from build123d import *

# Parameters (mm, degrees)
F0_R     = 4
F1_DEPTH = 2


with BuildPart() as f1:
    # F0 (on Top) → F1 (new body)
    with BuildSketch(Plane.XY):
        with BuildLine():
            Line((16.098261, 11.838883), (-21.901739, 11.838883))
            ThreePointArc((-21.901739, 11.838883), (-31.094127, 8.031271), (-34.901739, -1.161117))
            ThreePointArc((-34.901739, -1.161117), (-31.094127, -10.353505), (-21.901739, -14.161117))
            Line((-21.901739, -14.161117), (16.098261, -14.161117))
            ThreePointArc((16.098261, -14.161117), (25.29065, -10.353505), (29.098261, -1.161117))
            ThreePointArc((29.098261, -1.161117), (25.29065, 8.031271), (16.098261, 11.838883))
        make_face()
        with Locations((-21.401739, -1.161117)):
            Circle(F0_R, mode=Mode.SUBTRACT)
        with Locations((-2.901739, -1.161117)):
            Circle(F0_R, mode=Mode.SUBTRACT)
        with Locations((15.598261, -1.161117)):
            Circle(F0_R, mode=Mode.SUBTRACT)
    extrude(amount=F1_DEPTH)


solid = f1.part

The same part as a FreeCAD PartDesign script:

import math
import FreeCAD as App
import Part
import Sketcher

V = App.Vector
Q = App.Units.Quantity

doc = App.newDocument("Part")
params = doc.addObject("Spreadsheet::Sheet", "Params")
for row, (alias, value) in enumerate([
    ("sketch1_diameter", "8 mm"),
    ("sketch1_radius", "13.000001 mm"),
    ("sketch1_width", "38 mm"),
    ("pad1_length", "2 mm"),
], start=1):
    params.set(f"A{row}", alias)
    params.set(f"B{row}", "=" + value)
    params.setAlias(f"B{row}", alias)

body = doc.addObject("PartDesign::Body", "Body")

sketch1 = body.newObject("Sketcher::SketchObject", "Sketch")
sketch1.AttachmentSupport = (doc.getObject("XY_Plane"), [""])
sketch1.MapMode = "FlatFace"
sketch1.addGeometry([
    Part.LineSegment(V(16.1, 11.8, 0), V(-21.9, 11.8, 0)),
    Part.ArcOfCircle(Part.Circle(V(-21.9, -1.2, 0), V(0, 0, 1), 13), math.radians(90), math.radians(180)),
    Part.ArcOfCircle(Part.Circle(V(-21.9, -1.2, 0), V(0, 0, 1), 13), math.radians(-180), math.radians(-90)),
    Part.LineSegment(V(-21.9, -14.2, 0), V(16.1, -14.2, 0)),
    Part.ArcOfCircle(Part.Circle(V(16.1, -1.2, 0), V(0, 0, 1), 13), math.radians(-90), math.radians(0)),
    Part.ArcOfCircle(Part.Circle(V(16.1, -1.2, 0), V(0, 0, 1), 13), math.radians(0), math.radians(90)),
    Part.Circle(V(-21.4, -1.2, 0), V(0, 0, 1), 4),
    Part.Circle(V(-2.9, -1.2, 0), V(0, 0, 1), 4),
    Part.Circle(V(15.6, -1.2, 0), V(0, 0, 1), 4),
], False)
sketch1.addConstraint([
    Sketcher.Constraint("Tangent", 0, 2, 1, 1),
    Sketcher.Constraint("Tangent", 1, 2, 2, 1),
    Sketcher.Constraint("Tangent", 2, 2, 3, 1),
    Sketcher.Constraint("Tangent", 3, 2, 4, 1),
    Sketcher.Constraint("Tangent", 4, 2, 5, 1),
    Sketcher.Constraint("Tangent", 5, 2, 0, 1),
    Sketcher.Constraint("Horizontal", 0),
    Sketcher.Constraint("Horizontal", 3),
    Sketcher.Constraint("Equal", 1, 2),
    Sketcher.Constraint("Equal", 2, 4),
    Sketcher.Constraint("Equal", 6, 7),
    Sketcher.Constraint("Equal", 7, 8),
    Sketcher.Constraint("Horizontal", 5, 3, 6, 3),
    Sketcher.Constraint("Horizontal", 6, 3, 7, 3),
    Sketcher.Constraint("Horizontal", 7, 3, 8, 3),
    Sketcher.Constraint("Horizontal", 8, 3, 1, 2),
    Sketcher.Constraint("Horizontal", 1, 2, 4, 2),
    Sketcher.Constraint("Diameter", 6, Q("8 mm")),
    Sketcher.Constraint("Radius", 1, Q("13.000001 mm")),
    Sketcher.Constraint("DistanceX", 0, 2, 0, 1, Q("38 mm")),
    Sketcher.Constraint("DistanceX", 1, 3, 7, 3, Q("18.999999 mm")),
    Sketcher.Constraint("DistanceX", 6, 3, 8, 3, Q("37 mm")),
    Sketcher.Constraint("DistanceX", 1, 3, 6, 3, Q("0.499999 mm")),
    Sketcher.Constraint("DistanceX", 1, 3, -1, 1, Q("21.901738 mm")),
    Sketcher.Constraint("DistanceY", 4, 3, -1, 1, Q("1.161118 mm")),
])
sketch1.setExpression("Constraints[17]", "Params.sketch1_diameter")
sketch1.setExpression("Constraints[18]", "Params.sketch1_radius")
sketch1.setExpression("Constraints[19]", "Params.sketch1_width")
pad1 = body.newObject("PartDesign::Pad", "Pad")
pad1.Profile = sketch1
pad1.setExpression("Length", "Params.pad1_length")

doc.recompute()
